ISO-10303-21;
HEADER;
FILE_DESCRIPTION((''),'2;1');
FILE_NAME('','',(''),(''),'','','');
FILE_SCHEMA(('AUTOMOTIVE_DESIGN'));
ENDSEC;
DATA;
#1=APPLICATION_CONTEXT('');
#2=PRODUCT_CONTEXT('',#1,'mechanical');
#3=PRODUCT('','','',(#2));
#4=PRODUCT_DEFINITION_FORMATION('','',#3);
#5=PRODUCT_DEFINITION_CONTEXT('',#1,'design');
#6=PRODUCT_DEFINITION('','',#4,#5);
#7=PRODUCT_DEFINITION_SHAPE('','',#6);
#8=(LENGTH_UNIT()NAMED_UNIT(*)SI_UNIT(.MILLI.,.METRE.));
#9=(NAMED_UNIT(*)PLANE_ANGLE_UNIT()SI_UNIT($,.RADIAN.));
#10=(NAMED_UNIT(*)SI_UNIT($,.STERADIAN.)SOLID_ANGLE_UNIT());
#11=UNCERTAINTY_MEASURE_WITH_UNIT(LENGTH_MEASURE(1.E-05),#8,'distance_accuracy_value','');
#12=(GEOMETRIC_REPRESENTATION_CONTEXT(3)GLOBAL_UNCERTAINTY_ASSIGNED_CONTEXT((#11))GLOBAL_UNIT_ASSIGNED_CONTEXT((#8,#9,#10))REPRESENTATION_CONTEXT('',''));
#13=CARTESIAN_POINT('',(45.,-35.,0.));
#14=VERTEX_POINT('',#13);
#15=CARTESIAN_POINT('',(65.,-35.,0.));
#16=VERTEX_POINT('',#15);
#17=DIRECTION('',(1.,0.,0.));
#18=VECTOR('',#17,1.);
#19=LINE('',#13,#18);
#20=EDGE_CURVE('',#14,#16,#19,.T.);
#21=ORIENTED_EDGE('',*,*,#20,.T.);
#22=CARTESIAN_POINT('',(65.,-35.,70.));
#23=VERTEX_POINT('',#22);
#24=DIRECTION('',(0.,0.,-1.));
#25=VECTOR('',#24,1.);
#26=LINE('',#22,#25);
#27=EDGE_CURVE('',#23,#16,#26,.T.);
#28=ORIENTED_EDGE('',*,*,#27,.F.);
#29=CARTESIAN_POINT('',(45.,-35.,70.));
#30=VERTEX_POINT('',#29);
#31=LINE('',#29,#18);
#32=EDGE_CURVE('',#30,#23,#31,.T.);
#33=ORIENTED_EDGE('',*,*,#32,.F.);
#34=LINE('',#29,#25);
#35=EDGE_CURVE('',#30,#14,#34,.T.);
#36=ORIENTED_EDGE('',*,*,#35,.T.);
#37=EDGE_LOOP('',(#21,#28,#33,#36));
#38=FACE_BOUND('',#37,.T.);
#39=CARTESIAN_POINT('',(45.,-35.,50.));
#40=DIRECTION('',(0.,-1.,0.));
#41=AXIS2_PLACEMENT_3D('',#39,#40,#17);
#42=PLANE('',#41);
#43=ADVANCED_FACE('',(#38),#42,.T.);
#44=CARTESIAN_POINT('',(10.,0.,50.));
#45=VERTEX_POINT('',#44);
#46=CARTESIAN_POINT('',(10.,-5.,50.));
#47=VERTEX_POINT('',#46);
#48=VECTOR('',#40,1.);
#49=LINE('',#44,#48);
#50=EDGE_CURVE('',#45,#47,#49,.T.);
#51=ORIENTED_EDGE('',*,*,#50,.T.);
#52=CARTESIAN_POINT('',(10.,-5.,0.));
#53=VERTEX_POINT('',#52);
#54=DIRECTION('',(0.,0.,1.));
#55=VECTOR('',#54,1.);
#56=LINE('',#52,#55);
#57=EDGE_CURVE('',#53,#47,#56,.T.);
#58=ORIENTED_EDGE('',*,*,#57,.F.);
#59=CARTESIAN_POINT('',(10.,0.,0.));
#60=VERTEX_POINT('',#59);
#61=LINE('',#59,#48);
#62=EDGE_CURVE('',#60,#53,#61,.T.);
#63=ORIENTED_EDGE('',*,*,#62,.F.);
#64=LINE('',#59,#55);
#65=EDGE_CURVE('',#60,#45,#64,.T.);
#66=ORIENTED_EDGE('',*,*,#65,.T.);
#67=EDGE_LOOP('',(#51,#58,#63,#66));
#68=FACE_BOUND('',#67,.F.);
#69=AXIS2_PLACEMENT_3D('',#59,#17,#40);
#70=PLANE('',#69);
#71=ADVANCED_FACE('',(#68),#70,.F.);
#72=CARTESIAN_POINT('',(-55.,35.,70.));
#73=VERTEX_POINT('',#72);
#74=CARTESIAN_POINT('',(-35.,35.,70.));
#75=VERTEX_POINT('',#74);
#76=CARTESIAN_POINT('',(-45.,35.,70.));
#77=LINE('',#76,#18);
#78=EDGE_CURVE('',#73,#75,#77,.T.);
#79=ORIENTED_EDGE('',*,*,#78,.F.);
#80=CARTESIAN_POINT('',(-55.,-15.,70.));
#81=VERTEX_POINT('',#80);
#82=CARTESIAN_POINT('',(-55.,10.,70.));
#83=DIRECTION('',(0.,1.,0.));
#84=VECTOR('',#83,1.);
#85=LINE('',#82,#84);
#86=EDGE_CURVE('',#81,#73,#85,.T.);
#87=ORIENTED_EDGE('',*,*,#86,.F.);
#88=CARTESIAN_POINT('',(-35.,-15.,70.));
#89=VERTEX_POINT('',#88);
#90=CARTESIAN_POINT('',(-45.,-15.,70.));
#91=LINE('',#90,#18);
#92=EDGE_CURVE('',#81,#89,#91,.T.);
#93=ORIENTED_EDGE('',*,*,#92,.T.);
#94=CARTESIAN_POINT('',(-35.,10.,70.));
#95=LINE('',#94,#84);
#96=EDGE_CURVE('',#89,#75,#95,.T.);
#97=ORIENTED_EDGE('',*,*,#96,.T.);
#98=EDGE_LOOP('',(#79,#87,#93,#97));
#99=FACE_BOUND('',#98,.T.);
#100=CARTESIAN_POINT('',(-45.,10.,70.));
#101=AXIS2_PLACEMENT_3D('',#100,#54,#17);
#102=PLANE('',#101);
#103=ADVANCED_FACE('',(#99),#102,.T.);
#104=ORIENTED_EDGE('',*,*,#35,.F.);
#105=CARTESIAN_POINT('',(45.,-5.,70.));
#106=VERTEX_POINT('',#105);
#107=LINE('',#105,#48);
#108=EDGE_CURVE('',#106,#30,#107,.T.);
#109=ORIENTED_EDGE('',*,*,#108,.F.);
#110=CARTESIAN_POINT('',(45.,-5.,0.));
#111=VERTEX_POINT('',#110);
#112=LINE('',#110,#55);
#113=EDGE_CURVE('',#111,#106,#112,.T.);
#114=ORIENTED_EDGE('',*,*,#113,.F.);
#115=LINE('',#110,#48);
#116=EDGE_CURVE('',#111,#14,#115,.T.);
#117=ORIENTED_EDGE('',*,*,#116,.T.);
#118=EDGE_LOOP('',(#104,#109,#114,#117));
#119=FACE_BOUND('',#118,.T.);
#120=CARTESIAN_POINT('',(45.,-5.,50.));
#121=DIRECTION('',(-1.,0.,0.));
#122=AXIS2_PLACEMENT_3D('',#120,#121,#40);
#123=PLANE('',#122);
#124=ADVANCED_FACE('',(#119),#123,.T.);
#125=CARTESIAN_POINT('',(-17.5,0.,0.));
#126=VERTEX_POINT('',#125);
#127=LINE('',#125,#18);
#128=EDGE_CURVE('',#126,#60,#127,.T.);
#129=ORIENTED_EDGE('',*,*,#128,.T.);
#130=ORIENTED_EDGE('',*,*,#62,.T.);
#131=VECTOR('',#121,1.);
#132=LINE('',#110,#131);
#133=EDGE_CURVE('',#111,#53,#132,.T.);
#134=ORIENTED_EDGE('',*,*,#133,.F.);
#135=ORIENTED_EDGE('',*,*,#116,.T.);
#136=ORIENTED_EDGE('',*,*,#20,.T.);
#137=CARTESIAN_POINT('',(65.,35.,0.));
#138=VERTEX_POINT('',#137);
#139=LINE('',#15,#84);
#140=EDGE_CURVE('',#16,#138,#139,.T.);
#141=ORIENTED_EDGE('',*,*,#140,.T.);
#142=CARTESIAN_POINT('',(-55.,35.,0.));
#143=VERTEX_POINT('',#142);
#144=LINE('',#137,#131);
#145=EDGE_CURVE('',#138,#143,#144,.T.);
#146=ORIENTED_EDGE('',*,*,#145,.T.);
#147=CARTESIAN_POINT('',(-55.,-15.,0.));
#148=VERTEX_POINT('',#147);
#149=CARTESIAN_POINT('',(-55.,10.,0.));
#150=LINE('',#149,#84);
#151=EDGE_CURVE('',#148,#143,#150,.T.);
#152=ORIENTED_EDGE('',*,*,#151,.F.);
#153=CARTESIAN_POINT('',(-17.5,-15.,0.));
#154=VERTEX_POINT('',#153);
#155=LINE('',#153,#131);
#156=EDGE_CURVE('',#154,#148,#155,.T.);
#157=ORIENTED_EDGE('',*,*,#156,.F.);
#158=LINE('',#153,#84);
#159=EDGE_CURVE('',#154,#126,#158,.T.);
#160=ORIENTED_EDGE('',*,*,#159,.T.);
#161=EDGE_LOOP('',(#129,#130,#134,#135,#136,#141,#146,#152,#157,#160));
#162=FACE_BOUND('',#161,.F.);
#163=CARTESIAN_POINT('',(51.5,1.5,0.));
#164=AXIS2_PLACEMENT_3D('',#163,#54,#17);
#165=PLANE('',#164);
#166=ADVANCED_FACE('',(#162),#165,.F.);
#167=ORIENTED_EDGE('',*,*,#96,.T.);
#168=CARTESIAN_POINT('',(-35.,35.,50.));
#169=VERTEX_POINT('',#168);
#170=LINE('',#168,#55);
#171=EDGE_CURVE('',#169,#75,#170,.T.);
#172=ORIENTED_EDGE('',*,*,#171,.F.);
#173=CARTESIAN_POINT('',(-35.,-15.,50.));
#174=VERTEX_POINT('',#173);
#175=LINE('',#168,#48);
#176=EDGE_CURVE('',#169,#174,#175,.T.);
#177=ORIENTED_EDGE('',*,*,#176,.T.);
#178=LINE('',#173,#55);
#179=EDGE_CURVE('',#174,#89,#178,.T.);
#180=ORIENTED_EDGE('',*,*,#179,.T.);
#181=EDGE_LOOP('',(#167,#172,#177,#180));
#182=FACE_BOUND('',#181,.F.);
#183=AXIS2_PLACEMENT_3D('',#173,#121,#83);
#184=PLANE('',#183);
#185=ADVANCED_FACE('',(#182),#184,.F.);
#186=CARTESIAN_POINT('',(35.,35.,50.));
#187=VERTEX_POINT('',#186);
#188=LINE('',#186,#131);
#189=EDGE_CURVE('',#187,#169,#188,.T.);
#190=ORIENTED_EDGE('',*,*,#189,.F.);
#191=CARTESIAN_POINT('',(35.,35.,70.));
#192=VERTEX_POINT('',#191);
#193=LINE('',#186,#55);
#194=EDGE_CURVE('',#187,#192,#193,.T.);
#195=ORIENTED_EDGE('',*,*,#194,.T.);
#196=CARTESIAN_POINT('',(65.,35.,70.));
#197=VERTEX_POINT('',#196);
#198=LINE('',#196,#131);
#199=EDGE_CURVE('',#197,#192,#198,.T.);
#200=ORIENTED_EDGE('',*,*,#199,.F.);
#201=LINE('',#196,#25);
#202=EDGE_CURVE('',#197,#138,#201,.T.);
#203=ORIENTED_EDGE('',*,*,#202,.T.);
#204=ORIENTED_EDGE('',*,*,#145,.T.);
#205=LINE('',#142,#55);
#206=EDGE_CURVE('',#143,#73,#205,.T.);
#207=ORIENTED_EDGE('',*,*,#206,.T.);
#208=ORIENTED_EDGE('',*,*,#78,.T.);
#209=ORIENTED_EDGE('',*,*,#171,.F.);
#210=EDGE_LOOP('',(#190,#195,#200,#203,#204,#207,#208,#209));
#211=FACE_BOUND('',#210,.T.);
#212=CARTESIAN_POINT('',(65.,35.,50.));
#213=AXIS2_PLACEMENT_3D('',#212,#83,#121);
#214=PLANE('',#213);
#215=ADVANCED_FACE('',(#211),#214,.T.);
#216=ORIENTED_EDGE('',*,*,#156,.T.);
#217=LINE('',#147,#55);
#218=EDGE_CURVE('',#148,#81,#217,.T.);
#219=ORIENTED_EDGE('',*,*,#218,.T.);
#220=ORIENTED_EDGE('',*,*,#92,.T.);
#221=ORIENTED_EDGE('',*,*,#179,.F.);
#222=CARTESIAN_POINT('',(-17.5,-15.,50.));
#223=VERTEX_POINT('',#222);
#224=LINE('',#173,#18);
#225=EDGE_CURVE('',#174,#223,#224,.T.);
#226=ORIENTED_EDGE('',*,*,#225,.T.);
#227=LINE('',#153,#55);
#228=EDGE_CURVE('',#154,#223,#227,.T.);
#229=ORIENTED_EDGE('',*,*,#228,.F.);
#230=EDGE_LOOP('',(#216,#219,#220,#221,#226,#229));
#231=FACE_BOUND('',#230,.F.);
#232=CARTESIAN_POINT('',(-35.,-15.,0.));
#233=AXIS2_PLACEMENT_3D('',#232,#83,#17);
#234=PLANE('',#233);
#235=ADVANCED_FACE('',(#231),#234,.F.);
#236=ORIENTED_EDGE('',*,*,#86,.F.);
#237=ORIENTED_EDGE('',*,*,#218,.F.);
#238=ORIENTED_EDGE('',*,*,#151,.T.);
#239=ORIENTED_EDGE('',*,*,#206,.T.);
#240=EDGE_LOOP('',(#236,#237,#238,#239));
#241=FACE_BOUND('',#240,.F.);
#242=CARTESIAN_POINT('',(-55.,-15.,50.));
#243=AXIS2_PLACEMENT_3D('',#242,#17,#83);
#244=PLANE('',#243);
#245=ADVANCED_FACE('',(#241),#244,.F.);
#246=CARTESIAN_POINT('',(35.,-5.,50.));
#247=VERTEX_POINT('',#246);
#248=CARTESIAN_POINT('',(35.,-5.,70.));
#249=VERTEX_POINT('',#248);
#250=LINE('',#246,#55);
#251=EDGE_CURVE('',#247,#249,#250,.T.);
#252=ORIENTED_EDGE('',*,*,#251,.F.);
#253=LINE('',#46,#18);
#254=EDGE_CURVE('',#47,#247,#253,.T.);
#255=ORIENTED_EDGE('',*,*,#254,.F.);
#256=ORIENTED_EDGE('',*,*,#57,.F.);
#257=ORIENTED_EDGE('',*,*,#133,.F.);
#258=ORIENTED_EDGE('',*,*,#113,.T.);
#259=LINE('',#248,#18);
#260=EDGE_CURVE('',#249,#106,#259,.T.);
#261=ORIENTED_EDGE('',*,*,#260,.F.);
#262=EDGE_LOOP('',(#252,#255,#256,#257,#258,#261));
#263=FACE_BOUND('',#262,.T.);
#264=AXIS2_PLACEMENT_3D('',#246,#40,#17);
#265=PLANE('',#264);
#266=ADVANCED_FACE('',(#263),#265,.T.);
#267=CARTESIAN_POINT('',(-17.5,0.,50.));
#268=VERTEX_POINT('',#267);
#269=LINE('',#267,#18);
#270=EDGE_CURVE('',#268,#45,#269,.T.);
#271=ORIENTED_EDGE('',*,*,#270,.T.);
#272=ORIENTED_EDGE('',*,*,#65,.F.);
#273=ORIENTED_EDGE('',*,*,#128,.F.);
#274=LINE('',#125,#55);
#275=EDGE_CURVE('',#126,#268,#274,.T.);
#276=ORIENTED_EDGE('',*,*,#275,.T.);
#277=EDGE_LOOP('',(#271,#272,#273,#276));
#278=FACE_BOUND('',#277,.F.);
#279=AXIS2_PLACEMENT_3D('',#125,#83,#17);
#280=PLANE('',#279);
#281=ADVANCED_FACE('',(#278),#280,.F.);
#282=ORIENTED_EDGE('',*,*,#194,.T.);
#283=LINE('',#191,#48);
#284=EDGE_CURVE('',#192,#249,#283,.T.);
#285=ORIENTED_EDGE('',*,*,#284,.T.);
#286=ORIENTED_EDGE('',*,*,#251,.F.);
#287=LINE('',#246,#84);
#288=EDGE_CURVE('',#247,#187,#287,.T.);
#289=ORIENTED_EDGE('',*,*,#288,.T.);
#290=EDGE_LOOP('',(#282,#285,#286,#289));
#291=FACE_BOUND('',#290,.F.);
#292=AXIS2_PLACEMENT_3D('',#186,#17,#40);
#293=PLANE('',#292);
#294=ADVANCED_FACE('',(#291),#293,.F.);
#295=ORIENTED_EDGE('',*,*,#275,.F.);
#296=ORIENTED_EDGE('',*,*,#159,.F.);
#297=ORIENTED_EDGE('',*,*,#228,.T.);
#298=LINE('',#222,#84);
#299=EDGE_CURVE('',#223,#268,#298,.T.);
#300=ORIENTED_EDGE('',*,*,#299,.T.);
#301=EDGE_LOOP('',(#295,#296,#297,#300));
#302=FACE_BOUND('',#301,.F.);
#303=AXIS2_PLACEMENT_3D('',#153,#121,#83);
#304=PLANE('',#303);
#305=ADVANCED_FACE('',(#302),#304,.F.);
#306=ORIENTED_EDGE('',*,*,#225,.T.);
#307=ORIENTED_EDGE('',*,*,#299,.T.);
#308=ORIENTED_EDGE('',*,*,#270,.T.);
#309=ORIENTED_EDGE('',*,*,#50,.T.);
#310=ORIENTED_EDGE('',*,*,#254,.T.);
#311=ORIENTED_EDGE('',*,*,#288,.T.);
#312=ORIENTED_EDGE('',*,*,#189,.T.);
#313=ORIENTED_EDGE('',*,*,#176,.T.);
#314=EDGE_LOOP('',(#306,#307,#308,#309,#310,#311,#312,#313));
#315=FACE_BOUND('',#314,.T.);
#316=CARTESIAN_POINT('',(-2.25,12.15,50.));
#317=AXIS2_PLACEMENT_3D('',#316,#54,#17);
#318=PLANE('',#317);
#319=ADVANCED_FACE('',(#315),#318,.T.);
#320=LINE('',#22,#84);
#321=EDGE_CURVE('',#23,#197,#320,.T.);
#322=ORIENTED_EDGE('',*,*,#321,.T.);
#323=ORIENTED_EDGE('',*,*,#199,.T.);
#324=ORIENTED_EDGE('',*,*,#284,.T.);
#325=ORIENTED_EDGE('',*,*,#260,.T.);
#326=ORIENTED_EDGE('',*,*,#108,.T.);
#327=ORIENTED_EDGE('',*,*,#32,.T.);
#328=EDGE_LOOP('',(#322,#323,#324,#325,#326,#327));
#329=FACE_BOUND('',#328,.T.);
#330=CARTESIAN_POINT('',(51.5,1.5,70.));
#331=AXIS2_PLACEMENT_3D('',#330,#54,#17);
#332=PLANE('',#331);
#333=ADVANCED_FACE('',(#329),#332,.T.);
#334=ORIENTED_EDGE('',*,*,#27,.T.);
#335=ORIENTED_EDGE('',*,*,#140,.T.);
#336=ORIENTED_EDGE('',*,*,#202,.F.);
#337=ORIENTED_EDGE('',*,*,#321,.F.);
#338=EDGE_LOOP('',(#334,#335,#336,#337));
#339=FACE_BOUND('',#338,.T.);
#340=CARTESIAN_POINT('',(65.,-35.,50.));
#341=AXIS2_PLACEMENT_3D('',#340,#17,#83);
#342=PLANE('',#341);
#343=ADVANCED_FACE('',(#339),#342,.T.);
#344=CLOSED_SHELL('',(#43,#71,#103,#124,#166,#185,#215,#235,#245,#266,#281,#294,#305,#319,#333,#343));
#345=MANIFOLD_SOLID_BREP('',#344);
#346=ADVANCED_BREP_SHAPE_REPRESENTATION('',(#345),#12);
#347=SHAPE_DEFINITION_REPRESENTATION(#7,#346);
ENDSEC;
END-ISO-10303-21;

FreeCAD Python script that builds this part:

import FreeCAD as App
import Part
import Sketcher
from FreeCAD import Vector


def add_polygon(sketch, points):
    """Adds a closed chain of lines whose ends are joined by coincident constraints."""
    first, n = sketch.GeometryCount, len(points)
    for a, b in zip(points, points[1:] + points[:1]):
        sketch.addGeometry(Part.LineSegment(App.Vector(*a, 0), App.Vector(*b, 0)), False)
    for i in range(n):
        sketch.addConstraint(Sketcher.Constraint("Coincident", first + i, 2, first + (i + 1) % n, 1))

doc = App.newDocument("Part")
body = doc.addObject("PartDesign::Body", "Body")

sketch1 = body.newObject("Sketcher::SketchObject", "Sketch")
sketch1.AttachmentSupport = (doc.getObject("XY_Plane"), [""])
sketch1.MapMode = "FlatFace"
add_polygon(sketch1, [(35, 35), (-35, 35), (-35, -15), (-17.5, -15), (-17.5, 0), (10, 0), (10, -5), (35, -5)])
sketch1.addConstraint([
    Sketcher.Constraint("Horizontal", 0),
    Sketcher.Constraint("Vertical", 1),
    Sketcher.Constraint("Horizontal", 2),
    Sketcher.Constraint("Vertical", 3),
    Sketcher.Constraint("Horizontal", 4),
    Sketcher.Constraint("Vertical", 5),
    Sketcher.Constraint("Horizontal", 6),
    Sketcher.Constraint("Vertical", 7),
    Sketcher.Constraint("PointOnObject", 3, 2, -1),
    Sketcher.Constraint("DistanceX", 0, 2, 0, 1, 70.0),
    Sketcher.Constraint("DistanceX", 6, 1, 6, 2, 25.0),
    Sketcher.Constraint("DistanceY", 1, 2, 1, 1, 50.0),
    Sketcher.Constraint("DistanceY", 3, 1, 3, 2, 15.0),
    Sketcher.Constraint("DistanceY", 5, 2, 5, 1, 5.0),
    Sketcher.Constraint("DistanceX", 2, 1, 2, 2, 17.5),
    Sketcher.Constraint("DistanceX", 0, 2, -1, 1, 35.0),
])
pad1 = body.newObject("PartDesign::Pad", "Pad")
pad1.Profile = sketch1
pad1.Length = 50

sketch2 = body.newObject("Sketcher::SketchObject", "Sketch001")
sketch2.AttachmentSupport = (doc.getObject("XY_Plane"), [""])
sketch2.MapMode = "FlatFace"
sketch2.AttachmentOffset = App.Placement(Vector(0, 0, 50), App.Rotation())
add_polygon(sketch2, [(65, 35), (35, 35), (35, -5), (45, -5), (45, -35), (65, -35)])
add_polygon(sketch2, [(-55, 35), (-55, -15), (-35, -15), (-35, 35)])
sketch2.addConstraint([
    Sketcher.Constraint("Horizontal", 0),
    Sketcher.Constraint("Vertical", 1),
    Sketcher.Constraint("Horizontal", 2),
    Sketcher.Constraint("Vertical", 3),
    Sketcher.Constraint("Horizontal", 4),
    Sketcher.Constraint("Vertical", 5),
    Sketcher.Constraint("Vertical", 6),
    Sketcher.Constraint("Horizontal", 7),
    Sketcher.Constraint("Vertical", 8),
    Sketcher.Constraint("Horizontal", 9),
    Sketcher.Constraint("Symmetric", 0, 2, 8, 2, -2),
    Sketcher.Constraint("Equal", 4, 7),
    Sketcher.Constraint("Equal", 0, 3),
    Sketcher.Constraint("DistanceX", 0, 2, 0, 1, 30.0),
    Sketcher.Constraint("DistanceX", 2, 1, 2, 2, 10.0),
    Sketcher.Constraint("DistanceY", 1, 2, 1, 1, 40.0),
    Sketcher.Constraint("DistanceY", 6, 2, 6, 1, 50.0),
    Sketcher.Constraint("DistanceX", -1, 1, 0, 2, 35.0),
    Sketcher.Constraint("DistanceY", -1, 1, 0, 2, 35.0),
])
pad2 = body.newObject("PartDesign::Pad", "Pad001")
pad2.Profile = sketch2
pad2.Type = "TwoLengths"
pad2.Length = 20
pad2.Length2 = 50

doc.recompute()
